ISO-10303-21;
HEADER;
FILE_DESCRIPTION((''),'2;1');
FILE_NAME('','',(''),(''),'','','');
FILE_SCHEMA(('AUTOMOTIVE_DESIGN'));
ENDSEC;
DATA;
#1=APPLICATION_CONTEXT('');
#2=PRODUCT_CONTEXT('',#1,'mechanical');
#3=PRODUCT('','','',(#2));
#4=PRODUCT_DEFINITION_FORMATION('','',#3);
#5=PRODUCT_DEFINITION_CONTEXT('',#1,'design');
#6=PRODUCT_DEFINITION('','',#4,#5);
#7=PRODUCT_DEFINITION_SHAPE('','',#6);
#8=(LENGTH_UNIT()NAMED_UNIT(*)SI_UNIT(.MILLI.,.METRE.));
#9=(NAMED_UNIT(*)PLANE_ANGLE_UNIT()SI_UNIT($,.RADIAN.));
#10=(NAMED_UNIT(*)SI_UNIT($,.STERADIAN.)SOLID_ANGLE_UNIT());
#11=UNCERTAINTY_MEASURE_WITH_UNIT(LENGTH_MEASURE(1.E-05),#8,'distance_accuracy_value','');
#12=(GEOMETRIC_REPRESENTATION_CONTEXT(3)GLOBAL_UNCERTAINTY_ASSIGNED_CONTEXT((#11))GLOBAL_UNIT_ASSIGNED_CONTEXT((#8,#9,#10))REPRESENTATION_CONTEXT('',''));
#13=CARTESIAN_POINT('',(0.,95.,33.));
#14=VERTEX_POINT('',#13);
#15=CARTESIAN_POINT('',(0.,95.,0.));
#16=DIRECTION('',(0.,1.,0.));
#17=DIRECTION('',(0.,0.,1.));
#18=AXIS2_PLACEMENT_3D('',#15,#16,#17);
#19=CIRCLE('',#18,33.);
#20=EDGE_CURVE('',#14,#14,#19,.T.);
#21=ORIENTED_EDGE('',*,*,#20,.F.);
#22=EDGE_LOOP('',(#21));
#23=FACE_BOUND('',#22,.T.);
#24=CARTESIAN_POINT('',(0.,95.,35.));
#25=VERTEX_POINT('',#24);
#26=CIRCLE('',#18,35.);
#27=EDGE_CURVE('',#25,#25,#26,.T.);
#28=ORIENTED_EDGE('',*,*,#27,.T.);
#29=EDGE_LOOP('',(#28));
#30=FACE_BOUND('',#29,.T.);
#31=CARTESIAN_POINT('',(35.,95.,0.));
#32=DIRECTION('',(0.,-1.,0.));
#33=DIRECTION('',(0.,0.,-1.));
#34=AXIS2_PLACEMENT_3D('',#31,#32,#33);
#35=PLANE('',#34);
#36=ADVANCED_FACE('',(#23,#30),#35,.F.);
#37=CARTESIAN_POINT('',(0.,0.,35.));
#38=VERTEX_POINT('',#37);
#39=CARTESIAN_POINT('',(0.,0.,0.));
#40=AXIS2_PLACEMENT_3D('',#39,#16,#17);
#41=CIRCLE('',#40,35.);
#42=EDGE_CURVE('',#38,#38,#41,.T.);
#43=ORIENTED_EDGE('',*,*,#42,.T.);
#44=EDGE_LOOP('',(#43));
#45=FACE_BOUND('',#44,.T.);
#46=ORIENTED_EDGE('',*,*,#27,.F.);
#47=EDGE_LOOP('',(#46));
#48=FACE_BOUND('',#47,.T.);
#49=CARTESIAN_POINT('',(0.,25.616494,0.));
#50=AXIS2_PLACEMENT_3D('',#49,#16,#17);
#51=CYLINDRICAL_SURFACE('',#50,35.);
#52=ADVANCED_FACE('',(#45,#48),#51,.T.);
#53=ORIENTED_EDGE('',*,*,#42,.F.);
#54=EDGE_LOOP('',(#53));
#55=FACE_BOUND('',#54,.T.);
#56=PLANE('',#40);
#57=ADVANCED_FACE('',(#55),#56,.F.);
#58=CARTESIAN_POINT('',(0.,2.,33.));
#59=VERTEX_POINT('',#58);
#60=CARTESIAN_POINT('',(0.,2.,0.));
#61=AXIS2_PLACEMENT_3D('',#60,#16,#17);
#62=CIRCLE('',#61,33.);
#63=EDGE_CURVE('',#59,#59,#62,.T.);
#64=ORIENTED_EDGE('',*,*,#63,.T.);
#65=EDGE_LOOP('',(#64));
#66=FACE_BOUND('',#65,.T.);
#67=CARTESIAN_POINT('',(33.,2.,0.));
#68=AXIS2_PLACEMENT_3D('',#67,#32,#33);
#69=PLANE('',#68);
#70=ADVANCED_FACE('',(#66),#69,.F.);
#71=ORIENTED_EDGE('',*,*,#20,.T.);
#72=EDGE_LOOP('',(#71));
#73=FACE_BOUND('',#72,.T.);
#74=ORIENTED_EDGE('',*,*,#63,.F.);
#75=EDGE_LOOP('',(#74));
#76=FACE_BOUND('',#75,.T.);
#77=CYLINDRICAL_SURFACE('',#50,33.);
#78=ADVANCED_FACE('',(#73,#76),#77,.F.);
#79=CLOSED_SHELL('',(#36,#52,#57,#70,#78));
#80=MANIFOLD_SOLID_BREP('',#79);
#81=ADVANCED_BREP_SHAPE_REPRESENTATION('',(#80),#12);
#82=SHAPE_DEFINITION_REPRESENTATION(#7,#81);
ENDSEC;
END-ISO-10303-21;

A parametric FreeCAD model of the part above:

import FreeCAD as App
import Part
import Sketcher

V = App.Vector


def add_polygon(sketch, points):
    """Adds a closed chain of lines whose ends are joined by coincident constraints."""
    first, n = sketch.GeometryCount, len(points)
    for a, b in zip(points, points[1:] + points[:1]):
        sketch.addGeometry(Part.LineSegment(App.Vector(*a, 0), App.Vector(*b, 0)), False)
    for i in range(n):
        sketch.addConstraint(Sketcher.Constraint("Coincident", first + i, 2, first + (i + 1) % n, 1))

doc = App.newDocument("Part")
body = doc.addObject("PartDesign::Body", "Body")

sketch1 = doc.addObject("Sketcher::SketchObject", "Sketch")
body.addObject(sketch1)
sketch1.AttachmentSupport = (doc.XY_Plane, [""])
sketch1.MapMode = "FlatFace"
add_polygon(sketch1, [(0, 0), (35, 0), (35, 95), (33, 95), (33, 2), (0, 2)])
sketch1.addConstraint(Sketcher.Constraint("Horizontal", 0))
sketch1.addConstraint(Sketcher.Constraint("Vertical", 1))
sketch1.addConstraint(Sketcher.Constraint("Horizontal", 2))
sketch1.addConstraint(Sketcher.Constraint("Vertical", 3))
sketch1.addConstraint(Sketcher.Constraint("Horizontal", 4))
sketch1.addConstraint(Sketcher.Constraint("Vertical", 5))
sketch1.addConstraint(Sketcher.Constraint("Coincident", 5, 2, -1, 1))
sketch1.addConstraint(Sketcher.Constraint("Equal", 2, 5))
sketch1.addConstraint(Sketcher.Constraint("DistanceX", 0, 1, 0, 2, 35.0))
sketch1.addConstraint(Sketcher.Constraint("DistanceX", 2, 2, 2, 1, 2.0))
sketch1.addConstraint(Sketcher.Constraint("DistanceY", 1, 1, 1, 2, 95.0))
revolution = doc.addObject("PartDesign::Revolution", "Revolution")
body.addObject(revolution)
revolution.Profile = sketch1
revolution.ReferenceAxis = (sketch1, ["V_Axis"])
revolution.Angle = 360

doc.recompute()
